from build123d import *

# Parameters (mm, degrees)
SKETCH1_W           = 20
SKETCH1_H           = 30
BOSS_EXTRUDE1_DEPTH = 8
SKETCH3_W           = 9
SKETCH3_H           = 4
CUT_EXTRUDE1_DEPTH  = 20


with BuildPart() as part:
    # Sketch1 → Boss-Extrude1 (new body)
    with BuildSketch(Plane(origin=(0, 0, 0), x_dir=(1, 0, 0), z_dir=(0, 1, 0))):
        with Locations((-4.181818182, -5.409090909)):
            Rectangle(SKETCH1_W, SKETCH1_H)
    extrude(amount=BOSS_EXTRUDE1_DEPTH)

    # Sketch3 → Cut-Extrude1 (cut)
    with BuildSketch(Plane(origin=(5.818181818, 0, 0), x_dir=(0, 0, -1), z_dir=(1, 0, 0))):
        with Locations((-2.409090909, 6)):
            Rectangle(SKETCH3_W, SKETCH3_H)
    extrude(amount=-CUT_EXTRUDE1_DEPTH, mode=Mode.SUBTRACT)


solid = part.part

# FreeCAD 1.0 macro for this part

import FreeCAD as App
import Part
import Sketcher

V = App.Vector
Q = App.Units.Quantity


def add_polygon(sketch, points):
    """Adds a closed chain of lines whose ends are joined by coincident constraints."""
    first, n = sketch.GeometryCount, len(points)
    for a, b in zip(points, points[1:] + points[:1]):
        sketch.addGeometry(Part.LineSegment(App.Vector(*a, 0), App.Vector(*b, 0)), False)
    for i in range(n):
        sketch.addConstraint(Sketcher.Constraint("Coincident", first + i, 2, first + (i + 1) % n, 1))

doc = App.newDocument("Part")
body = doc.addObject("PartDesign::Body", "Body")

# Sketch on XZ plane
sketch1 = doc.addObject("Sketcher::SketchObject", "Sketch")
body.addObject(sketch1)
sketch1.AttachmentSupport = (doc.XZ_Plane, [""])
sketch1.MapMode = "FlatFace"
add_polygon(sketch1, [(-14, -10), (-14, 20), (6, 20), (6, -10)])  # lines 0-3
sketch1.addConstraint([
    Sketcher.Constraint("Vertical", 0),
    Sketcher.Constraint("Horizontal", 1),
    Sketcher.Constraint("Vertical", 2),
    Sketcher.Constraint("Horizontal", 3),
    Sketcher.Constraint("DistanceX", 1, 1, 1, 2, Q("20 mm")),
    Sketcher.Constraint("DistanceY", 0, 1, 0, 2, Q("30 mm")),
    Sketcher.Constraint("DistanceX", 0, 2, -1, 1, Q("14.181818 mm")),
    Sketcher.Constraint("DistanceY", -1, 1, 0, 2, Q("20.409091 mm")),
])
pad1 = doc.addObject("PartDesign::Pad", "Pad")
body.addObject(pad1)
pad1.Profile = sketch1
pad1.Length = 8
pad1.Reversed = True

# Sketch on YZ plane
sketch2 = doc.addObject("Sketcher::SketchObject", "Sketch001")
body.addObject(sketch2)
sketch2.AttachmentSupport = (doc.YZ_Plane, [""])
sketch2.MapMode = "FlatFace"
sketch2.AttachmentOffset = App.Placement(V(0, 0, 5.818182), App.Rotation())
add_polygon(sketch2, [(8, 6.9), (4, 6.9), (4, -2.1), (8, -2.1)])  # lines 0-3
sketch2.addConstraint([
    Sketcher.Constraint("Horizontal", 0),
    Sketcher.Constraint("Vertical", 1),
    Sketcher.Constraint("Horizontal", 2),
    Sketcher.Constraint("Vertical", 3),
    Sketcher.Constraint("DistanceX", 0, 2, 0, 1, Q("4 mm")),
    Sketcher.Constraint("DistanceY", 1, 2, 1, 1, Q("9 mm")),
    Sketcher.Constraint("DistanceX", -1, 1, 0, 2, Q("4 mm")),
    Sketcher.Constraint("DistanceY", -1, 1, 0, 2, Q("6.909091 mm")),
])
pocket1 = doc.addObject("PartDesign::Pocket", "Pocket")
body.addObject(pocket1)
pocket1.Profile = sketch2
pocket1.Length = 20

doc.recompute()
